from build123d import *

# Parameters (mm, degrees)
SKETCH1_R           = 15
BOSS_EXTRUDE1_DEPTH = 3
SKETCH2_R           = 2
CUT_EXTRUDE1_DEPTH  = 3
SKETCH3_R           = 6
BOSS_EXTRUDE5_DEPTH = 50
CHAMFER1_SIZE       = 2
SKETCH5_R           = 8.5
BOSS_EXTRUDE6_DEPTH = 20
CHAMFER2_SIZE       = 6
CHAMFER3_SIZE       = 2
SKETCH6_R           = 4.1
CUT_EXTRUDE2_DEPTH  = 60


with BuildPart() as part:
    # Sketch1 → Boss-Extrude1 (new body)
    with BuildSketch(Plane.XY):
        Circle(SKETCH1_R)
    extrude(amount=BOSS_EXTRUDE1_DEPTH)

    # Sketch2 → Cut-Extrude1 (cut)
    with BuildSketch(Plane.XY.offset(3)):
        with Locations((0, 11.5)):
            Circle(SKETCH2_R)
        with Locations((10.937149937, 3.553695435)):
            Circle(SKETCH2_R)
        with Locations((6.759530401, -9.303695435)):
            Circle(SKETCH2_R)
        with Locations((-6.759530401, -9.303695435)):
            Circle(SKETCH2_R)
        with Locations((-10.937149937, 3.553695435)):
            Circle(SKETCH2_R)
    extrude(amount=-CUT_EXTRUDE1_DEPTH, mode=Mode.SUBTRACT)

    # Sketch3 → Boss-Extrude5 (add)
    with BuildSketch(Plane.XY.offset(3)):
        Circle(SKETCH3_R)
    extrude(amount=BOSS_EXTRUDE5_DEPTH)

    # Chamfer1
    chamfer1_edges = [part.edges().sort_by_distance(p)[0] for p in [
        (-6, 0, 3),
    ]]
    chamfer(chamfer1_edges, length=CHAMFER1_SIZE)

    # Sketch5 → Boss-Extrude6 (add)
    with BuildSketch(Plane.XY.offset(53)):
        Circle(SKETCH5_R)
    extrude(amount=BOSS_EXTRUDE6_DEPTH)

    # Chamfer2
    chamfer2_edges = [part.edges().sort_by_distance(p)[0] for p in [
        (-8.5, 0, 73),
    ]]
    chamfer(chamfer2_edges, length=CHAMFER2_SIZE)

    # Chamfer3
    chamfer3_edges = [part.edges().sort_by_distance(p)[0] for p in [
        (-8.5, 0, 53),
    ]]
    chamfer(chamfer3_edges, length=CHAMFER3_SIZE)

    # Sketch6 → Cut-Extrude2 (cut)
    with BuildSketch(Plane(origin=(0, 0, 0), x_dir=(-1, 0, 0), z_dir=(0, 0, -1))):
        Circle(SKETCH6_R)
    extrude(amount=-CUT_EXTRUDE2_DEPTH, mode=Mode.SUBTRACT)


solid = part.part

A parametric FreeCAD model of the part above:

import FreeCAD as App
import Part
import Sketcher


def edges_at(feature, points):
    """Names of the edges that pass closest to the given points."""
    edges = feature.Shape.Edges
    near = lambda p: min(range(len(edges)), key=lambda i: edges[i].distToShape(Part.Vertex(*p))[0])
    return sorted({f"Edge{near(p) + 1}" for p in points})

doc = App.newDocument("Part")
params = doc.addObject("Spreadsheet::Sheet", "Params")
for row, (alias, value) in enumerate([
    ("sketch1_diameter", "30 mm"),
    ("pad1_length", "3 mm"),
    ("sketch2_diameter", "4 mm"),
    ("pocket1_length", "3 mm"),
    ("sketch3_diameter", "12 mm"),
    ("pad2_length", "50 mm"),
    ("chamfer_size", "2 mm"),
    ("sketch4_diameter", "17 mm"),
    ("pad3_length", "20 mm"),
    ("chamfer2_size", "6 mm"),
    ("chamfer3_size", "2 mm"),
    ("sketch5_diameter", "8.2 mm"),
    ("pocket2_length", "60 mm"),
], start=1):
    params.set(f"A{row}", alias)
    params.set(f"B{row}", "=" + value)
    params.setAlias(f"B{row}", alias)

body = doc.addObject("PartDesign::Body", "Body")

sketch1 = body.newObject("Sketcher::SketchObject", "Sketch")
sketch1.AttachmentSupport = (doc.getObject("XY_Plane"), [""])
sketch1.MapMode = "FlatFace"
sketch1.addGeometry(Part.Circle(App.Vector(0, 0, 0), App.Vector(0, 0, 1), 15), False)
sketch1.addConstraint([
    Sketcher.Constraint("Coincident", 0, 3, -1, 1),
    Sketcher.Constraint("Diameter", 0, 30.0),
])
sketch1.setExpression("Constraints[1]", "Params.sketch1_diameter")
pad1 = body.newObject("PartDesign::Pad", "Pad")
pad1.Profile = sketch1
pad1.setExpression("Length", "Params.pad1_length")

sketch2 = body.newObject("Sketcher::SketchObject", "Sketch001")
sketch2.AttachmentSupport = (doc.getObject("XY_Plane"), [""])
sketch2.MapMode = "FlatFace"
sketch2.AttachmentOffset = App.Placement(App.Vector(0, 0, 3), App.Rotation())
sketch2.addGeometry([
    Part.Circle(App.Vector(0, 11.5, 0), App.Vector(0, 0, 1), 2),
    Part.Circle(App.Vector(10.9, 3.6, 0), App.Vector(0, 0, 1), 2),
    Part.Circle(App.Vector(6.8, -9.3, 0), App.Vector(0, 0, 1), 2),
    Part.Circle(App.Vector(-6.8, -9.3, 0), App.Vector(0, 0, 1), 2),
    Part.Circle(App.Vector(-10.9, 3.6, 0), App.Vector(0, 0, 1), 2),
], False)
sketch2.addConstraint([
    Sketcher.Constraint("Equal", 0, 1),
    Sketcher.Constraint("Equal", 1, 2),
    Sketcher.Constraint("Equal", 2, 3),
    Sketcher.Constraint("Equal", 3, 4),
    Sketcher.Constraint("Symmetric", 2, 3, 3, 3, -2),
    Sketcher.Constraint("Symmetric", 1, 3, 4, 3, -2),
    Sketcher.Constraint("PointOnObject", 0, 3, -2),
    Sketcher.Constraint("Diameter", 0, 4.0),
    Sketcher.Constraint("DistanceY", -1, 1, 0, 3, 11.5),
    Sketcher.Constraint("DistanceX", 4, 3, 1, 3, 21.8743),
    Sketcher.Constraint("DistanceX", -1, 1, 2, 3, 6.75953),
    Sketcher.Constraint("DistanceY", 2, 3, 1, 3, 12.857391),
    Sketcher.Constraint("DistanceY", -1, 1, 1, 3, 3.553695),
])
sketch2.setExpression("Constraints[7]", "Params.sketch2_diameter")
pocket1 = body.newObject("PartDesign::Pocket", "Pocket")
pocket1.Profile = sketch2
pocket1.setExpression("Length", "Params.pocket1_length")

sketch3 = body.newObject("Sketcher::SketchObject", "Sketch002")
sketch3.AttachmentSupport = (doc.getObject("XY_Plane"), [""])
sketch3.MapMode = "FlatFace"
sketch3.AttachmentOffset = App.Placement(App.Vector(0, 0, 3), App.Rotation())
sketch3.addGeometry(Part.Circle(App.Vector(0, 0, 0), App.Vector(0, 0, 1), 6), False)
sketch3.addConstraint([
    Sketcher.Constraint("Coincident", 0, 3, -1, 1),
    Sketcher.Constraint("Diameter", 0, 12.0),
])
sketch3.setExpression("Constraints[1]", "Params.sketch3_diameter")
pad2 = body.newObject("PartDesign::Pad", "Pad001")
pad2.Profile = sketch3
pad2.setExpression("Length", "Params.pad2_length")
doc.recompute()

chamfer = body.newObject("PartDesign::Chamfer", "Chamfer")
chamfer.Base = (pad2, edges_at(pad2, [(-6, 0, 3)]))
chamfer.setExpression("Size", "Params.chamfer_size")

sketch4 = body.newObject("Sketcher::SketchObject", "Sketch003")
sketch4.AttachmentSupport = (doc.getObject("XY_Plane"), [""])
sketch4.MapMode = "FlatFace"
sketch4.AttachmentOffset = App.Placement(App.Vector(0, 0, 53), App.Rotation())
sketch4.addGeometry(Part.Circle(App.Vector(0, 0, 0), App.Vector(0, 0, 1), 8), False)
sketch4.addConstraint([
    Sketcher.Constraint("Coincident", 0, 3, -1, 1),
    Sketcher.Constraint("Diameter", 0, 17.0),
])
sketch4.setExpression("Constraints[1]", "Params.sketch4_diameter")
pad3 = body.newObject("PartDesign::Pad", "Pad002")
pad3.Profile = sketch4
pad3.setExpression("Length", "Params.pad3_length")
doc.recompute()

chamfer2 = body.newObject("PartDesign::Chamfer", "Chamfer001")
chamfer2.Base = (pad3, edges_at(pad3, [(-8.5, 0, 73)]))
chamfer2.setExpression("Size", "Params.chamfer2_size")
doc.recompute()

chamfer3 = body.newObject("PartDesign::Chamfer", "Chamfer002")
chamfer3.Base = (chamfer2, edges_at(chamfer2, [(-8.5, 0, 53)]))
chamfer3.setExpression("Size", "Params.chamfer3_size")

sketch5 = body.newObject("Sketcher::SketchObject", "Sketch004")
sketch5.AttachmentSupport = (doc.getObject("XY_Plane"), [""])
sketch5.MapMode = "FlatFace"
sketch5.addGeometry(Part.Circle(App.Vector(0, 0, 0), App.Vector(0, 0, 1), 4.1), False)
sketch5.addConstraint([
    Sketcher.Constraint("Coincident", 0, 3, -1, 1),
    Sketcher.Constraint("Diameter", 0, 8.2),
])
sketch5.setExpression("Constraints[1]", "Params.sketch5_diameter")
pocket2 = body.newObject("PartDesign::Pocket", "Pocket001")
pocket2.Profile = sketch5
pocket2.setExpression("Length", "Params.pocket2_length")
pocket2.Reversed = True

doc.recompute()
